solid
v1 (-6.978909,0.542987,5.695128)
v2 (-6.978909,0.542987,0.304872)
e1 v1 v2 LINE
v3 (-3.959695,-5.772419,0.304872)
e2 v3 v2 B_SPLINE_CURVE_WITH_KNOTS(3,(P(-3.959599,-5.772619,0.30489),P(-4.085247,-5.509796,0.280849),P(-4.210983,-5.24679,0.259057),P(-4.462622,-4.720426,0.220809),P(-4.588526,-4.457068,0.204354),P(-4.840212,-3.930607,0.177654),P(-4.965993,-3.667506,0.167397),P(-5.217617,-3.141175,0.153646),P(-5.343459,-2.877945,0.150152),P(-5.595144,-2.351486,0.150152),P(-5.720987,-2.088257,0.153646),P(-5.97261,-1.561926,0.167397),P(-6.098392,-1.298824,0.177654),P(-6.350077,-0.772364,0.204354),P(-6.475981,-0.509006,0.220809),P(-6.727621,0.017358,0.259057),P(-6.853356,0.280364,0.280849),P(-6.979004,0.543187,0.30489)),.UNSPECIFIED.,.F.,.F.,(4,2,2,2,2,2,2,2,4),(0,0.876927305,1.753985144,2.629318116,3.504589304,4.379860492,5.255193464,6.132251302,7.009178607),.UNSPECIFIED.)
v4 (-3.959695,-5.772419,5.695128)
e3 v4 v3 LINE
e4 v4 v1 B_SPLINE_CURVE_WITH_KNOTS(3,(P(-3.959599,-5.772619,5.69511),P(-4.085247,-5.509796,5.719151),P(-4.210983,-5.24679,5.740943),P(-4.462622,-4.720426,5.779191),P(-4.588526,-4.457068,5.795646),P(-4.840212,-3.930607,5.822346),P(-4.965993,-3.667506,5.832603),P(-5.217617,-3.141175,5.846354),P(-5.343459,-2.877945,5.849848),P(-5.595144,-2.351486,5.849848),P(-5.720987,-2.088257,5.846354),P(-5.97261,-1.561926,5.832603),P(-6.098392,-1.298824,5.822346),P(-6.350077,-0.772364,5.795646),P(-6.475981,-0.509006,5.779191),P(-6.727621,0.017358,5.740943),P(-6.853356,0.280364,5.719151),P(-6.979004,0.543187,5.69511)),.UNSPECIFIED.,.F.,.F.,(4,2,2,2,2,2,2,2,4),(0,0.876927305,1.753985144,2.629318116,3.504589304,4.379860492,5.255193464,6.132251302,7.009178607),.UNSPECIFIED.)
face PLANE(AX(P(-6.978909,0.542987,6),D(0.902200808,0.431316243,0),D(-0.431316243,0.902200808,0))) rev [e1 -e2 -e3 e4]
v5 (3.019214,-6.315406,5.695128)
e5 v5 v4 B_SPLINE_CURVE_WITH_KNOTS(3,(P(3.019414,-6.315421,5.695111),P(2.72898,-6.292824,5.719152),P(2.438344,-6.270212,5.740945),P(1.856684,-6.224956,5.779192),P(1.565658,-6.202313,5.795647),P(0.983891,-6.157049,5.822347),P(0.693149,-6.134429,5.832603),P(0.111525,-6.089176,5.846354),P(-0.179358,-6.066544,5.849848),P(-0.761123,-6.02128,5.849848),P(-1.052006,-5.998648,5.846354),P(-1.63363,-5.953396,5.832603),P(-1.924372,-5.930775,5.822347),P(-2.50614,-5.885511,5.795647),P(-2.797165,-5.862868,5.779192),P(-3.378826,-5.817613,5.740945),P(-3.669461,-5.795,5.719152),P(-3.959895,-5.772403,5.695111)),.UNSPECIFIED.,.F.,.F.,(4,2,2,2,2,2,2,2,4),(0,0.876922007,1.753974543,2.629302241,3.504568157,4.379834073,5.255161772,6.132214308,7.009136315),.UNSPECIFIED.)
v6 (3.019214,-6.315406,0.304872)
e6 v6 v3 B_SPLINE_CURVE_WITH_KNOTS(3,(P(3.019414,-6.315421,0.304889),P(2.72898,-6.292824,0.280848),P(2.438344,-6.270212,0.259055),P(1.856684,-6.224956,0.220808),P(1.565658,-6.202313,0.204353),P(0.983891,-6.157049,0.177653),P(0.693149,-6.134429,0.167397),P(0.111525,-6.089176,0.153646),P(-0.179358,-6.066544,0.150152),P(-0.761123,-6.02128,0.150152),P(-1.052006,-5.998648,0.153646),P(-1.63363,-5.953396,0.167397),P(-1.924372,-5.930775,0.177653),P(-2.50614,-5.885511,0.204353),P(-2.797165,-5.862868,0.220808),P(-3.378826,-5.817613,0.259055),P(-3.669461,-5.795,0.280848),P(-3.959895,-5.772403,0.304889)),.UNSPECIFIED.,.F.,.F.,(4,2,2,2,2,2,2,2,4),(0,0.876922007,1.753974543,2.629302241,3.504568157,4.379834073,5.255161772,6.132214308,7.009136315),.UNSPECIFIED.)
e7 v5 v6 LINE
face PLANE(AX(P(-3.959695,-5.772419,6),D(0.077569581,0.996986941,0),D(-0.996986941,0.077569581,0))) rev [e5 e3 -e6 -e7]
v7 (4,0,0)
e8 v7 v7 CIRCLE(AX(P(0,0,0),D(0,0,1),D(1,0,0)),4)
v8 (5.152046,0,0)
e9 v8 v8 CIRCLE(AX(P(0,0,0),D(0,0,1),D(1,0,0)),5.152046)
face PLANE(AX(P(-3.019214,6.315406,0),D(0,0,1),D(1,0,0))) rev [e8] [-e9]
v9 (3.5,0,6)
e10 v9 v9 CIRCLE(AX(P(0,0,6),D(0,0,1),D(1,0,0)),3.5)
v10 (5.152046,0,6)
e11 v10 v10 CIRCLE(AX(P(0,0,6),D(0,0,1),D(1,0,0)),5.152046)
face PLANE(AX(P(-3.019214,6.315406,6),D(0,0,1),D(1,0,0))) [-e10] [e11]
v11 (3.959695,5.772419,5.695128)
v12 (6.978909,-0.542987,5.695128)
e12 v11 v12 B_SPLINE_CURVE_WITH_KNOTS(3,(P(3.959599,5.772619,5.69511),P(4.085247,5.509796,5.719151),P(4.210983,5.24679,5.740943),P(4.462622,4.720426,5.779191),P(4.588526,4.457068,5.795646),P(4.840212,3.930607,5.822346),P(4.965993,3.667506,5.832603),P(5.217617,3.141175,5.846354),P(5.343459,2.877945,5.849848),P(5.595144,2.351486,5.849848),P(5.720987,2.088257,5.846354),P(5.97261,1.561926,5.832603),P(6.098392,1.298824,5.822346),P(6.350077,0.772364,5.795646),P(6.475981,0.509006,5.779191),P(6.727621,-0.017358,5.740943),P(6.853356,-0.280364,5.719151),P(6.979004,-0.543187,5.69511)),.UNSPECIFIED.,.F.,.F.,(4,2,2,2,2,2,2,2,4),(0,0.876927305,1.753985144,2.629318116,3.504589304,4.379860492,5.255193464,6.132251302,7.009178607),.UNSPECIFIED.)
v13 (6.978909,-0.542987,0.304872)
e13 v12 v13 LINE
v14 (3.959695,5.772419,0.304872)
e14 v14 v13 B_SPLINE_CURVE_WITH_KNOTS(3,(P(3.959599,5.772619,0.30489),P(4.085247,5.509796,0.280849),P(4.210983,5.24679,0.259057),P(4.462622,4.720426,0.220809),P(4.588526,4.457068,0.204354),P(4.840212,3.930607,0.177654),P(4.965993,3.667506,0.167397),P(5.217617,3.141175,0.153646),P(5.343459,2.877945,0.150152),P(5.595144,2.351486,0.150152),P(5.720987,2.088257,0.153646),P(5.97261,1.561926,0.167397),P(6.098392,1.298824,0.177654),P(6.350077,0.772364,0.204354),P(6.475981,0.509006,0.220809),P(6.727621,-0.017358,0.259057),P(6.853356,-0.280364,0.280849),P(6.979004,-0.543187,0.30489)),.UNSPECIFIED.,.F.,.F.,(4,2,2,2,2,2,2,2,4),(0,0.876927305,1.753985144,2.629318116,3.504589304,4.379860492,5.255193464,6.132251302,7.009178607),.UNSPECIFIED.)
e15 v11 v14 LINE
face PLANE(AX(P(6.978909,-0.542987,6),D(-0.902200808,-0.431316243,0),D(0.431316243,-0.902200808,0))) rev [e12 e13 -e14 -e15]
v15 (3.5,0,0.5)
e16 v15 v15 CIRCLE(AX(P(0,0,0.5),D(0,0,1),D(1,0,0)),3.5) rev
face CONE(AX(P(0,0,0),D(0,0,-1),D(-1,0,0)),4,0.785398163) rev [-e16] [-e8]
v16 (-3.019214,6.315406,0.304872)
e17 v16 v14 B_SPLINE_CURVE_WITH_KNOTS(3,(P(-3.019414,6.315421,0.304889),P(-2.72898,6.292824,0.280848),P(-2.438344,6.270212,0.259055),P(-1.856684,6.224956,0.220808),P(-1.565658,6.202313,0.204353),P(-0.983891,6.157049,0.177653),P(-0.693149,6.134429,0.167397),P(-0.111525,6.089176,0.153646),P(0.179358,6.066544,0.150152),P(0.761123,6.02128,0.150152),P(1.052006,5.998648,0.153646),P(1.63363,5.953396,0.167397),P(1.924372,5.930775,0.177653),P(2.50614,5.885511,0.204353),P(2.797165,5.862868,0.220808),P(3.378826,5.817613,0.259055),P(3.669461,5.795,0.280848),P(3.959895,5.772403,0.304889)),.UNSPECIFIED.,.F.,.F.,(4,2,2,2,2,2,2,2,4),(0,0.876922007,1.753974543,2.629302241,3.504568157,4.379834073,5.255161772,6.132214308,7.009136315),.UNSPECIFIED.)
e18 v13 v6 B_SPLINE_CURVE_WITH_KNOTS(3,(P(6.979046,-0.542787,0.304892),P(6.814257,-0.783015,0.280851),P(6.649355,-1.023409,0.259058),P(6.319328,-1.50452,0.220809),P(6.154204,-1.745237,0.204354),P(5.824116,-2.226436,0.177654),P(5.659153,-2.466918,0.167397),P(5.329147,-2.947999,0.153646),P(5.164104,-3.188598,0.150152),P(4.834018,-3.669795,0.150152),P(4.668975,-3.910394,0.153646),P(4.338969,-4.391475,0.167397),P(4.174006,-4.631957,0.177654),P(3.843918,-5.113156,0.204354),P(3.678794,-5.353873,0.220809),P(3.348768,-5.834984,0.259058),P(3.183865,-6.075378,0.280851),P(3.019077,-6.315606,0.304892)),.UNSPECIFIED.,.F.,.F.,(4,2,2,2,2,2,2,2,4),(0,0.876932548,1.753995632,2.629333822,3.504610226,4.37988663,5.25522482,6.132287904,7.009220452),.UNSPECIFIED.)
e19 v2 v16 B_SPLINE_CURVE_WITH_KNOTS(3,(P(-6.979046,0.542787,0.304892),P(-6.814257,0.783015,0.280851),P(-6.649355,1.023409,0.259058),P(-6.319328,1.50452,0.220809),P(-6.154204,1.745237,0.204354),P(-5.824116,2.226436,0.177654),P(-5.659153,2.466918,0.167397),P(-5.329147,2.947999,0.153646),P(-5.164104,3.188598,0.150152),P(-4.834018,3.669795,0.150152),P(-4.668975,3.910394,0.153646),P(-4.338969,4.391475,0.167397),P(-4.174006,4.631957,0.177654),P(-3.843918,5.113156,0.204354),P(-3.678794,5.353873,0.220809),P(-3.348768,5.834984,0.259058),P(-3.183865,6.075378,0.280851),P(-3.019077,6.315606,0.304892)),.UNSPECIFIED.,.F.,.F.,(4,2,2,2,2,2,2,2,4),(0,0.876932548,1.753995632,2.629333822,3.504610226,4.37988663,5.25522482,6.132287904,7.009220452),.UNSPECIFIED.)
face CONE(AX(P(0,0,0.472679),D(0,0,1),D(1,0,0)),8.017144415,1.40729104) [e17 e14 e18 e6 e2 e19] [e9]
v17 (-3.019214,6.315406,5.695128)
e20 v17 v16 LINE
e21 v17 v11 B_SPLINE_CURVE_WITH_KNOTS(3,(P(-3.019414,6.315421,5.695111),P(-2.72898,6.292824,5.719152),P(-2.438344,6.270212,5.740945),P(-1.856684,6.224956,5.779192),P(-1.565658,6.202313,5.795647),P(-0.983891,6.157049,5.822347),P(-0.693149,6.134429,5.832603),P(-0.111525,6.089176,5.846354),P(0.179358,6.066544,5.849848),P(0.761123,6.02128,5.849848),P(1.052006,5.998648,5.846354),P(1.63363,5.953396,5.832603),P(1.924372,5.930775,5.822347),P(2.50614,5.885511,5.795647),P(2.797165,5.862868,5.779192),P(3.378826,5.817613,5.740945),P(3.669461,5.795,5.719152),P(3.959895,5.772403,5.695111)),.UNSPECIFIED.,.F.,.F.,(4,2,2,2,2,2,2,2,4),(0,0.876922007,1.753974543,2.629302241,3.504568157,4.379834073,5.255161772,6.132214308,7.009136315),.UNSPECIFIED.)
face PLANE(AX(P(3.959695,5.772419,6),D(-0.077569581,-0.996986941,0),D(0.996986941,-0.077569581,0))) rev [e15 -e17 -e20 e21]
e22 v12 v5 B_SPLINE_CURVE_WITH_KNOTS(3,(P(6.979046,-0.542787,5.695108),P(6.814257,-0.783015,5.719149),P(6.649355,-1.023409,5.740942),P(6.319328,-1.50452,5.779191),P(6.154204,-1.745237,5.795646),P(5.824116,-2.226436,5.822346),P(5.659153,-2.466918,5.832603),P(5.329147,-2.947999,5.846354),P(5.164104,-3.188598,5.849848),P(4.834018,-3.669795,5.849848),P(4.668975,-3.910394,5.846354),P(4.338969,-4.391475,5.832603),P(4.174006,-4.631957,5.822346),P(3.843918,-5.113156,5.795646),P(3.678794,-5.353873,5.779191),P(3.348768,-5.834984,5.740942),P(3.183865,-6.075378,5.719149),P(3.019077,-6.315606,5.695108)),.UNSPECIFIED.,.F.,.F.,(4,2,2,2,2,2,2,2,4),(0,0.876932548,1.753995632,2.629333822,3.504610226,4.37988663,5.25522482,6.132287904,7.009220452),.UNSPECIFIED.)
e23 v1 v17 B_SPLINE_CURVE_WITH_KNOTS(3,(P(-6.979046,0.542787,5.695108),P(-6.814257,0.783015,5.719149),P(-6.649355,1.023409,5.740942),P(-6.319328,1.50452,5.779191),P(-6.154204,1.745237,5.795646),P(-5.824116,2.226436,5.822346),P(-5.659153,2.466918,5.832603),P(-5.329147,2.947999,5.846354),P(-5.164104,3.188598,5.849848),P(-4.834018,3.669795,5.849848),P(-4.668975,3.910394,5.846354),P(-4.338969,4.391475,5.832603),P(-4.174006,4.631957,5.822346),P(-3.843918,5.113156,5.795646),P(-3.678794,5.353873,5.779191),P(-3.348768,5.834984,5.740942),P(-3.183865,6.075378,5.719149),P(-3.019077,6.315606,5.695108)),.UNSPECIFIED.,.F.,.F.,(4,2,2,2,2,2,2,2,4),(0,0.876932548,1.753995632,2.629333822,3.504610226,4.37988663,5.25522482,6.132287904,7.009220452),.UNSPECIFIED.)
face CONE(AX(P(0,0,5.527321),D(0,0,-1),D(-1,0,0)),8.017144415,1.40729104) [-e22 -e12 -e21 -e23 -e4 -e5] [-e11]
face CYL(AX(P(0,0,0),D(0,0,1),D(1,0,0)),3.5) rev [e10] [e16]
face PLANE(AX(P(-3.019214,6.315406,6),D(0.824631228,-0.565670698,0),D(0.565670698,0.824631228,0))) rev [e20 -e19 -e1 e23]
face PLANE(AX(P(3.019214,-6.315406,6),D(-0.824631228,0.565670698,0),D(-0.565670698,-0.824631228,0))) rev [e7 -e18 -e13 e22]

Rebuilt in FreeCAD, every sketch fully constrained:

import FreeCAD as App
import Part
import Sketcher
Q = App.Units.Quantity


def edges_at(feature, points):
    """Names of the edges that pass closest to the given points."""
    edges = feature.Shape.Edges
    near = lambda p: min(range(len(edges)), key=lambda i: edges[i].distToShape(Part.Vertex(*p))[0])
    return sorted({f"Edge{near(p) + 1}" for p in points})


def add_polygon(sketch, points):
    """Adds a closed chain of lines whose ends are joined by coincident constraints."""
    first, n = sketch.GeometryCount, len(points)
    for a, b in zip(points, points[1:] + points[:1]):
        sketch.addGeometry(Part.LineSegment(App.Vector(*a, 0), App.Vector(*b, 0)), False)
    for i in range(n):
        sketch.addConstraint(Sketcher.Constraint("Coincident", first + i, 2, first + (i + 1) % n, 1))

doc = App.newDocument("Part")
params = doc.addObject("Spreadsheet::Sheet", "Params")
for row, (alias, value) in enumerate([
    ("sketch1_length", "7 mm"),
    ("sketch1_length2", "7 mm"),
    ("sketch1_length3", "7 mm"),
    ("sketch1_length4", "7 mm"),
    ("sketch1_length5", "7 mm"),
    ("pad1_length", "6 mm"),
    ("sketch4_diameter", "7 mm"),
    ("chamfer_size", "0.5 mm"),
], start=1):
    params.set(f"A{row}", alias)
    params.set(f"B{row}", "=" + value)
    params.setAlias(f"B{row}", alias)

body = doc.addObject("PartDesign::Body", "Body")

# Sketch on XY plane
sketch1 = body.newObject("Sketcher::SketchObject", "Sketch")
sketch1.AttachmentSupport = (doc.getObject("XY_Plane"), [""])
sketch1.MapMode = "FlatFace"
add_polygon(sketch1, [(-3.019214, 6.315406), (-6.978909, 0.542987), (-3.959695, -5.772419), (3.019214, -6.315406), (6.978909, -0.542987), (3.959695, 5.772419)])  # lines 0-5
sketch1.addConstraint([
    Sketcher.Constraint("Distance", 0, Q("7 mm")),
    Sketcher.Constraint("Distance", 1, Q("7 mm")),
    Sketcher.Constraint("Distance", 2, Q("7 mm")),
    Sketcher.Constraint("Distance", 3, Q("7 mm")),
    Sketcher.Constraint("Distance", 4, Q("7 mm")),
    Sketcher.Constraint("Distance", 5, Q("7 mm")),
    Sketcher.Constraint("DistanceX", 0, 2, -1, 1, Q("6.978909 mm")),
    Sketcher.Constraint("DistanceY", 1, 2, -1, 1, Q("5.772419 mm")),
    Sketcher.Constraint("DistanceX", -1, 1, 3, 2, Q("6.978909 mm")),
    Sketcher.Constraint("DistanceY", -1, 1, 4, 2, Q("5.772419 mm")),
    Sketcher.Constraint("DistanceX", 1, 2, 2, 2, Q("6.978909 mm")),
    Sketcher.Constraint("DistanceY", 2, 2, 3, 2, Q("5.772419 mm")),
])
sketch1.setExpression("Constraints[6]", "Params.sketch1_length")
sketch1.setExpression("Constraints[7]", "Params.sketch1_length2")
sketch1.setExpression("Constraints[8]", "Params.sketch1_length3")
sketch1.setExpression("Constraints[9]", "Params.sketch1_length4")
sketch1.setExpression("Constraints[10]", "Params.sketch1_length5")
pad1 = body.newObject("PartDesign::Pad", "Pad")
pad1.Profile = sketch1
pad1.setExpression("Length", "Params.pad1_length")

# Sketch on XZ plane
sketch2 = body.newObject("Sketcher::SketchObject", "Sketch001")
sketch2.AttachmentSupport = (doc.getObject("XZ_Plane"), [""])
sketch2.MapMode = "FlatFace"
add_polygon(sketch2, [(-8, 0.5), (-5.2, 0), (-8, -0.7)])  # lines 0-2
sketch2.addConstraint([
    Sketcher.Constraint("Vertical", 2),
    Sketcher.Constraint("PointOnObject", 0, 2, -1),
    Sketcher.Constraint("DistanceY", 2, 1, 2, 2, Q("1.162532 mm")),
    Sketcher.Constraint("DistanceX", 1, 2, 0, 2, Q("2.865099 mm")),
    Sketcher.Constraint("Distance", 1, Q("2.94698 mm")),
    Sketcher.Constraint("DistanceX", 0, 2, -1, 1, Q("5.152046 mm")),
])

# Sketch on XY plane
sketch3 = body.newObject("Sketcher::SketchObject", "Sketch002")
sketch3.AttachmentSupport = (doc.getObject("XY_Plane"), [""])
sketch3.MapMode = "FlatFace"
sketch3.addGeometry(Part.Circle(App.Vector(0, 0, 0), App.Vector(0, 0, 1), 4.8), False)
sketch3.addConstraint([
    Sketcher.Constraint("Coincident", 0, 3, -1, 1),
    Sketcher.Constraint("Diameter", 0, Q("9.61509 mm")),
])
doc.recompute()

subtractivepipe = body.newObject("PartDesign::SubtractivePipe", "SubtractivePipe")
subtractivepipe.Profile = sketch2
subtractivepipe.Spine = (sketch3, ["Edge1"])
doc.recompute()

datumplane = body.newObject("PartDesign::Plane", "DatumPlane")
datumplane.AttachmentSupport = (doc.getObject("XY_Plane"), [""])
datumplane.MapMode = "FlatFace"
datumplane.AttachmentOffset = App.Placement(App.Vector(0, 0, 3), App.Rotation())
mirrored = body.newObject("PartDesign::Mirrored", "Mirrored")
mirrored.Originals = [subtractivepipe]
mirrored.MirrorPlane = (datumplane, [""])
body.Tip = mirrored

# Sketch on XY plane
sketch4 = body.newObject("Sketcher::SketchObject", "Sketch003")
sketch4.AttachmentSupport = (doc.getObject("XY_Plane"), [""])
sketch4.MapMode = "FlatFace"
sketch4.AttachmentOffset = App.Placement(App.Vector(0, 0, 6), App.Rotation())
sketch4.addGeometry(Part.Circle(App.Vector(0, 0, 0), App.Vector(0, 0, 1), 3.5), False)
sketch4.addConstraint([
    Sketcher.Constraint("Coincident", 0, 3, -1, 1),
    Sketcher.Constraint("Diameter", 0, Q("7 mm")),
])
sketch4.setExpression("Constraints[1]", "Params.sketch4_diameter")
pocket1 = body.newObject("PartDesign::Pocket", "Pocket")
pocket1.Profile = sketch4
pocket1.Type = "ThroughAll"
doc.recompute()

chamfer = body.newObject("PartDesign::Chamfer", "Chamfer")
chamfer.Base = (pocket1, edges_at(pocket1, [(-3.5, 0, 0)]))
chamfer.setExpression("Size", "Params.chamfer_size")

doc.recompute()
